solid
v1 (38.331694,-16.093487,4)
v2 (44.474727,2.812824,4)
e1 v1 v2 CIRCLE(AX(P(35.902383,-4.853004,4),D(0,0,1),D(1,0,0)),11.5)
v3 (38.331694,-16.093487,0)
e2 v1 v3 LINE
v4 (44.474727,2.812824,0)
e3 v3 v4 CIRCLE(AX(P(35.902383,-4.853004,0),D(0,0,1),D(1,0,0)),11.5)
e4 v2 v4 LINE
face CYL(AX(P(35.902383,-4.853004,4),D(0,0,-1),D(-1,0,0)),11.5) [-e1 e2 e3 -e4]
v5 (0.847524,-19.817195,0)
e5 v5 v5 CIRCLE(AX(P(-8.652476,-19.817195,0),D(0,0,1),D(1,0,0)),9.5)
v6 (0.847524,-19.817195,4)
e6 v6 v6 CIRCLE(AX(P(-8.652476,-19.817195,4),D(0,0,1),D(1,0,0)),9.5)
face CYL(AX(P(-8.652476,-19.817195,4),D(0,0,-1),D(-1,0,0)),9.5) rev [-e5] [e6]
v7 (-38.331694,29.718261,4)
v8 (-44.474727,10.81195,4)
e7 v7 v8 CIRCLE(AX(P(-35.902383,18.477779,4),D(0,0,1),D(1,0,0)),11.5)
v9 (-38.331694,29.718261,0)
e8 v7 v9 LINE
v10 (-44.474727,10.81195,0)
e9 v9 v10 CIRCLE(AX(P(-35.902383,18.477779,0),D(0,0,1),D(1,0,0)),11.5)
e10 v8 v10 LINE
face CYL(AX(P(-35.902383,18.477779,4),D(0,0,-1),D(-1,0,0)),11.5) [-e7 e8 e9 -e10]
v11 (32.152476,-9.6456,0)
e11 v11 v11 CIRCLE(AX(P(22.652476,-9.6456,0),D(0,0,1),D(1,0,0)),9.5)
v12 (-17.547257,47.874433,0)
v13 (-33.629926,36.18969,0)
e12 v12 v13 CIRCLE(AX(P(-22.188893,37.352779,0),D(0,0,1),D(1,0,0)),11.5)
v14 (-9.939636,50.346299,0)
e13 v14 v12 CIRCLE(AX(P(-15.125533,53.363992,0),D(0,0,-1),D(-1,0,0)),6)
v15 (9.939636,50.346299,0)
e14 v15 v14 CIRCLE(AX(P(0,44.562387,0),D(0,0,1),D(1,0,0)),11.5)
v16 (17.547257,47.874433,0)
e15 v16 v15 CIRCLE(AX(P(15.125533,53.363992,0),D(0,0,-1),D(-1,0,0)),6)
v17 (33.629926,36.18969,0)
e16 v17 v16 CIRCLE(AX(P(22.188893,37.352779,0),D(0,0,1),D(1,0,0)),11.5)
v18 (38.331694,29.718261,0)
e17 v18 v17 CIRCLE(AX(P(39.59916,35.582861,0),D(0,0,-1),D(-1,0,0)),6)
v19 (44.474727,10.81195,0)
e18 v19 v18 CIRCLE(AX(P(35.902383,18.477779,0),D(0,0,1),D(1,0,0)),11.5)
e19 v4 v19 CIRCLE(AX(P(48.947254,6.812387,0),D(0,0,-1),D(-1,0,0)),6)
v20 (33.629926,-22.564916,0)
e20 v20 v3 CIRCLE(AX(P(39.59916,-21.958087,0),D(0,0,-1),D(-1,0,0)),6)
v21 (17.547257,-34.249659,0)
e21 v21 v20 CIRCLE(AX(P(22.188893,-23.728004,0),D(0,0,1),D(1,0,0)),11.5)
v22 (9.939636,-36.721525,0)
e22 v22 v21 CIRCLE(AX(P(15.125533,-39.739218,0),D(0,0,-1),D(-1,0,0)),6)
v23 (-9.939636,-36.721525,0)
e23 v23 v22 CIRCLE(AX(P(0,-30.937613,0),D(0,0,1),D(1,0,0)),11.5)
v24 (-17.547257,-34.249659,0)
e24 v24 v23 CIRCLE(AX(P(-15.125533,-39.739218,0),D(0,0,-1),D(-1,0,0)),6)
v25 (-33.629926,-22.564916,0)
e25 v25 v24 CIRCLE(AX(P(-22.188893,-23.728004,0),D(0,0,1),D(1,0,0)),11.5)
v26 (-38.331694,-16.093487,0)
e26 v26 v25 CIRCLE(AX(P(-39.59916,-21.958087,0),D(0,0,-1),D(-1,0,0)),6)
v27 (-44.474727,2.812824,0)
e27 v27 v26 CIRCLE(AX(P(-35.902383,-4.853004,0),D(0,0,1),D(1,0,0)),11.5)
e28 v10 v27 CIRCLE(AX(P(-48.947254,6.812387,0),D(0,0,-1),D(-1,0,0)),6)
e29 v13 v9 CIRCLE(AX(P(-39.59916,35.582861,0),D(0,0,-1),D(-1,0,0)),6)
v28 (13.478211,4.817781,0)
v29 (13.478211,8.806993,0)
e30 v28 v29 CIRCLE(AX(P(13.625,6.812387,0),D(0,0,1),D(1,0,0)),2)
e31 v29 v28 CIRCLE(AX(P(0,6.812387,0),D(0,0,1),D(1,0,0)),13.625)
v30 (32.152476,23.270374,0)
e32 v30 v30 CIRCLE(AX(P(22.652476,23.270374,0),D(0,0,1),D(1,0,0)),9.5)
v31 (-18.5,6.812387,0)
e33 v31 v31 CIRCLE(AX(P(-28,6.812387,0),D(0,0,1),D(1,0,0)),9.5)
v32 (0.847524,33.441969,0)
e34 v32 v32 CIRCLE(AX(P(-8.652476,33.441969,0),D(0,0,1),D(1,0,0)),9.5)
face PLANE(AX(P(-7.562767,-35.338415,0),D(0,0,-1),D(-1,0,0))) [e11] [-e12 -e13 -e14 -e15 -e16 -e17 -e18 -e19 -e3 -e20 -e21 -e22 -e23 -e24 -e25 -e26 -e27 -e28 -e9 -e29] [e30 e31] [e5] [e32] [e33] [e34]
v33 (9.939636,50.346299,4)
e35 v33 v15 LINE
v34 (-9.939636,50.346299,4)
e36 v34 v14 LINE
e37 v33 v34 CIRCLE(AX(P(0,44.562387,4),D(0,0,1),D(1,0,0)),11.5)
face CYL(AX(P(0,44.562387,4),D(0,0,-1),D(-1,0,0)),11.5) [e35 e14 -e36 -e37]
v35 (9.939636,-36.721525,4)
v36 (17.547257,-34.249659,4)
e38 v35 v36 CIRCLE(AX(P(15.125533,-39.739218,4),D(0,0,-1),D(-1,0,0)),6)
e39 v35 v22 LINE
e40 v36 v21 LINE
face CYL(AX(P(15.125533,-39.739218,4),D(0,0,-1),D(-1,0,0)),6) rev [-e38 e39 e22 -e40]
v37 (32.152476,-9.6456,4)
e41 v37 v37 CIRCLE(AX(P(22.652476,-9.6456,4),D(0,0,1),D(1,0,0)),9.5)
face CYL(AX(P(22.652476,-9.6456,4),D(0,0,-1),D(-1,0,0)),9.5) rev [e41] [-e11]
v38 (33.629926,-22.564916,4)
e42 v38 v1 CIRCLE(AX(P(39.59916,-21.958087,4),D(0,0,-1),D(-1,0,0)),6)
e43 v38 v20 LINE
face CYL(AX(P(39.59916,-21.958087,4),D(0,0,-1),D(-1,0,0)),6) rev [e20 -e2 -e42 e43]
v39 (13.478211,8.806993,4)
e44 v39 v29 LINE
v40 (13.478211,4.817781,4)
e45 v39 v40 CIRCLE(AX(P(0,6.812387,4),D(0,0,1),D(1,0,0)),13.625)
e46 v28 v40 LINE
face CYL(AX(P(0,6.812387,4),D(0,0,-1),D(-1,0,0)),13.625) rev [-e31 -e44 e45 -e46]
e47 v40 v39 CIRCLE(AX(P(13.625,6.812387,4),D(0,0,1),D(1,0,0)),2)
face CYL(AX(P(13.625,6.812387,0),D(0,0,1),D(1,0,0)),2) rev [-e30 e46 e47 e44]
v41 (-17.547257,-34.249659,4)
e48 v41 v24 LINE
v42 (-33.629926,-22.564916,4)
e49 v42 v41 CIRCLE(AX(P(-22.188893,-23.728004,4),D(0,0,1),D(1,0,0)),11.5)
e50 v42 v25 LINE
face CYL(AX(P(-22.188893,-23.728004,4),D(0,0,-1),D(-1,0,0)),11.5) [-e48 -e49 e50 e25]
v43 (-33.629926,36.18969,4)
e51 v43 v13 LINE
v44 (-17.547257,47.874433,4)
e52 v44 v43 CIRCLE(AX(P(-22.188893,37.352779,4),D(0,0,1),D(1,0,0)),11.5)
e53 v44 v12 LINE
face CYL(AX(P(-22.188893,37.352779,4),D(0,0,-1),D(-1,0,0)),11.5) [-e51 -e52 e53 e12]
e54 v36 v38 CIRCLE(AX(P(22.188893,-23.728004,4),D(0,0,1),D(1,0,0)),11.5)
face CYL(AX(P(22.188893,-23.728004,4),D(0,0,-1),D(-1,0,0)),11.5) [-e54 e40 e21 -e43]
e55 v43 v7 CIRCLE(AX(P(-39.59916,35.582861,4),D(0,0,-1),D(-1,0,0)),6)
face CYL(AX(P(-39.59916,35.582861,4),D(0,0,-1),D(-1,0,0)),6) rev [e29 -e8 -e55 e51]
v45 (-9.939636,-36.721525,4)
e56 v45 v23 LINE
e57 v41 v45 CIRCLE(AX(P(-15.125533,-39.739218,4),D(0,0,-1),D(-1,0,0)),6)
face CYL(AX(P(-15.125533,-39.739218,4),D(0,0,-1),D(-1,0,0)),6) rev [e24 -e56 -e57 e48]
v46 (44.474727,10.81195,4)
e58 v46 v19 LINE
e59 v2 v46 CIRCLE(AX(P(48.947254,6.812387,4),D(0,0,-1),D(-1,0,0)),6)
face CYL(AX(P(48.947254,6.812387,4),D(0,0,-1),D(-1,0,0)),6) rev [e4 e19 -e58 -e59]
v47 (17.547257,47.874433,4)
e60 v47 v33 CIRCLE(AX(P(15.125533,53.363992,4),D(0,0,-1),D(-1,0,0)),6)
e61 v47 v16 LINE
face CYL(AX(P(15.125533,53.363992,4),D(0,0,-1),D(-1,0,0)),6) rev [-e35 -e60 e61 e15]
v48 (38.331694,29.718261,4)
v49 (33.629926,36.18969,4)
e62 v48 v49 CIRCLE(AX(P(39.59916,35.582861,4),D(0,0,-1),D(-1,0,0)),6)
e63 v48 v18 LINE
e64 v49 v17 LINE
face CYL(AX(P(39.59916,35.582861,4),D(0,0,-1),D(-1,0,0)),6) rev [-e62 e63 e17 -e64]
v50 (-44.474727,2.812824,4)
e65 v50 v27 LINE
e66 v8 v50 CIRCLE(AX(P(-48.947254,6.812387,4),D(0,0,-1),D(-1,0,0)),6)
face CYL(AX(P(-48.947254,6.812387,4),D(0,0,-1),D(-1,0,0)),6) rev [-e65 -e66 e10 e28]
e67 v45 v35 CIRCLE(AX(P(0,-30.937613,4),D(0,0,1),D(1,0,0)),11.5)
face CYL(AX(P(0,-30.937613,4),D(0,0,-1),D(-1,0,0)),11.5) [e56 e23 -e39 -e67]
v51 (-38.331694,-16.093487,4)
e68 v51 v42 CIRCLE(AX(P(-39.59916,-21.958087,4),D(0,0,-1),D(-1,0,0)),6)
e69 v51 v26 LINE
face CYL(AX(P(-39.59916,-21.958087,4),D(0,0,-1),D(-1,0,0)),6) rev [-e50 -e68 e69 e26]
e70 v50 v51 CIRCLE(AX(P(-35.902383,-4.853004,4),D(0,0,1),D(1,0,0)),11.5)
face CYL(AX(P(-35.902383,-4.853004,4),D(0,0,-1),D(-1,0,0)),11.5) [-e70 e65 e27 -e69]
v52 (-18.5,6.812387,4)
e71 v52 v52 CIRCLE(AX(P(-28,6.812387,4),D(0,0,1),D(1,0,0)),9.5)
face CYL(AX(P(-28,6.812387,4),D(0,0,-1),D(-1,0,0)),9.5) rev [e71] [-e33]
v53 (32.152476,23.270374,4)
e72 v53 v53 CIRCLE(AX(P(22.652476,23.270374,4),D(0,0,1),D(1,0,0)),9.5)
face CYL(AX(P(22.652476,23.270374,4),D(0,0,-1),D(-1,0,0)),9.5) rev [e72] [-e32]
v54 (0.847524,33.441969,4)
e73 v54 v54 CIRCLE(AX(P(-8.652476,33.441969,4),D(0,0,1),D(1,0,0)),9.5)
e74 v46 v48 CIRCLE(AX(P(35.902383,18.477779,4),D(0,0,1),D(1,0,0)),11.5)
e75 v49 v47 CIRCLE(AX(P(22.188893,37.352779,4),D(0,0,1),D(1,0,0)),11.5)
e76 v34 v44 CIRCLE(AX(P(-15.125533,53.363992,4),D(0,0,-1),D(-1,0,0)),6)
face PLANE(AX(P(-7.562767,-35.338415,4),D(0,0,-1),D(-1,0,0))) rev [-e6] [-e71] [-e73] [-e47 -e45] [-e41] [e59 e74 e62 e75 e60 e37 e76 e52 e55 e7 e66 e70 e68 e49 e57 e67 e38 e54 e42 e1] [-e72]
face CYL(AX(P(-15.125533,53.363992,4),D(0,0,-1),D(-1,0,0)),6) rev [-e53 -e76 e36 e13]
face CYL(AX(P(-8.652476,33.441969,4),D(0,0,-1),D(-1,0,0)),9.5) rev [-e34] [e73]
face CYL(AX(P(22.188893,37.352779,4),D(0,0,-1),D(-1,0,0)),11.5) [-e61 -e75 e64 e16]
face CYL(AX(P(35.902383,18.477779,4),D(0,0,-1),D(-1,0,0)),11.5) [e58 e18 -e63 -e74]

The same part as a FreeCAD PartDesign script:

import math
import FreeCAD as App
import Part
import Sketcher
from FreeCAD import Vector

doc = App.newDocument("Part")
body = doc.addObject("PartDesign::Body", "Body")

# Sketch on XY plane
sketch1 = body.newObject("Sketcher::SketchObject", "Sketch")
sketch1.AttachmentSupport = (doc.getObject("XY_Plane"), [""])
sketch1.MapMode = "FlatFace"
sketch1.addGeometry(Part.ArcOfCircle(Part.Circle(Vector(0, -31, 0), Vector(0, 0, 1), 12), math.radians(-150), math.radians(-30)), False)
sketch1.addGeometry(Part.ArcOfCircle(Part.Circle(Vector(15, -40, 0), Vector(0, 0, 1), 6), math.radians(66), math.radians(150)), False)
sketch1.addGeometry(Part.ArcOfCircle(Part.Circle(Vector(22, -24, 0), Vector(0, 0, 1), 12), math.radians(-114), math.radians(6)), False)
sketch1.addGeometry(Part.ArcOfCircle(Part.Circle(Vector(40, -22, 0), Vector(0, 0, 1), 6), math.radians(102), math.radians(186)), False)
sketch1.addGeometry(Part.ArcOfCircle(Part.Circle(Vector(36, -5, 0), Vector(0, 0, 1), 11), math.radians(-78), math.radians(42)), False)
sketch1.addGeometry(Part.ArcOfCircle(Part.Circle(Vector(49, 7, 0), Vector(0, 0, 1), 6), math.radians(138), math.radians(222)), False)
sketch1.addGeometry(Part.ArcOfCircle(Part.Circle(Vector(36, 18, 0), Vector(0, 0, 1), 11), math.radians(-42), math.radians(78)), False)
sketch1.addGeometry(Part.ArcOfCircle(Part.Circle(Vector(40, 36, 0), Vector(0, 0, 1), 6), math.radians(174), math.radians(258)), False)
sketch1.addGeometry(Part.ArcOfCircle(Part.Circle(Vector(22, 37, 0), Vector(0, 0, 1), 12), math.radians(-6), math.radians(114)), False)
sketch1.addGeometry(Part.ArcOfCircle(Part.Circle(Vector(15, 53, 0), Vector(0, 0, 1), 6), math.radians(-150), math.radians(-66)), False)
sketch1.addGeometry(Part.ArcOfCircle(Part.Circle(Vector(0, 45, 0), Vector(0, 0, 1), 11), math.radians(30), math.radians(150)), False)
sketch1.addGeometry(Part.ArcOfCircle(Part.Circle(Vector(-15, 53, 0), Vector(0, 0, 1), 6), math.radians(-114), math.radians(-30)), False)
sketch1.addGeometry(Part.ArcOfCircle(Part.Circle(Vector(-22, 37, 0), Vector(0, 0, 1), 12), math.radians(66), math.radians(186)), False)
sketch1.addGeometry(Part.ArcOfCircle(Part.Circle(Vector(-40, 36, 0), Vector(0, 0, 1), 6), math.radians(-78), math.radians(6)), False)
sketch1.addGeometry(Part.ArcOfCircle(Part.Circle(Vector(-36, 18, 0), Vector(0, 0, 1), 11), math.radians(102), math.radians(222)), False)
sketch1.addGeometry(Part.ArcOfCircle(Part.Circle(Vector(-49, 7, 0), Vector(0, 0, 1), 6), math.radians(-42), math.radians(42)), False)
sketch1.addGeometry(Part.ArcOfCircle(Part.Circle(Vector(-36, -5, 0), Vector(0, 0, 1), 11), math.radians(138), math.radians(258)), False)
sketch1.addGeometry(Part.ArcOfCircle(Part.Circle(Vector(-40, -22, 0), Vector(0, 0, 1), 6), math.radians(-6), math.radians(78)), False)
sketch1.addGeometry(Part.ArcOfCircle(Part.Circle(Vector(-22, -24, 0), Vector(0, 0, 1), 12), math.radians(174), math.radians(294)), False)
sketch1.addGeometry(Part.ArcOfCircle(Part.Circle(Vector(-15, -40, 0), Vector(0, 0, 1), 6), math.radians(30), math.radians(114)), False)
sketch1.addGeometry(Part.Circle(Vector(-9, -20, 0), Vector(0, 0, 1), 10), False)
sketch1.addGeometry(Part.Circle(Vector(23, -10, 0), Vector(0, 0, 1), 10), False)
sketch1.addGeometry(Part.Circle(Vector(-28, 7, 0), Vector(0, 0, 1), 10), False)
sketch1.addGeometry(Part.Circle(Vector(-9, 33, 0), Vector(0, 0, 1), 10), False)
sketch1.addGeometry(Part.Circle(Vector(0, 7, 0), Vector(0, 0, 1), 14), False)
sketch1.addGeometry(Part.Circle(Vector(23, 23, 0), Vector(0, 0, 1), 10), False)
sketch1.addConstraint(Sketcher.Constraint("Tangent", 0, 2, 1, 2))
sketch1.addConstraint(Sketcher.Constraint("Tangent", 1, 1, 2, 1))
sketch1.addConstraint(Sketcher.Constraint("Tangent", 2, 2, 3, 2))
sketch1.addConstraint(Sketcher.Constraint("Tangent", 3, 1, 4, 1))
sketch1.addConstraint(Sketcher.Constraint("Tangent", 4, 2, 5, 2))
sketch1.addConstraint(Sketcher.Constraint("Tangent", 5, 1, 6, 1))
sketch1.addConstraint(Sketcher.Constraint("Tangent", 6, 2, 7, 2))
sketch1.addConstraint(Sketcher.Constraint("Tangent", 7, 1, 8, 1))
sketch1.addConstraint(Sketcher.Constraint("Tangent", 8, 2, 9, 2))
sketch1.addConstraint(Sketcher.Constraint("Tangent", 9, 1, 10, 1))
sketch1.addConstraint(Sketcher.Constraint("Tangent", 10, 2, 11, 2))
sketch1.addConstraint(Sketcher.Constraint("Tangent", 11, 1, 12, 1))
sketch1.addConstraint(Sketcher.Constraint("Tangent", 12, 2, 13, 2))
sketch1.addConstraint(Sketcher.Constraint("Tangent", 13, 1, 14, 1))
sketch1.addConstraint(Sketcher.Constraint("Tangent", 14, 2, 15, 2))
sketch1.addConstraint(Sketcher.Constraint("Tangent", 15, 1, 16, 1))
sketch1.addConstraint(Sketcher.Constraint("Tangent", 16, 2, 17, 2))
sketch1.addConstraint(Sketcher.Constraint("Tangent", 17, 1, 18, 1))
sketch1.addConstraint(Sketcher.Constraint("Tangent", 18, 2, 19, 2))
sketch1.addConstraint(Sketcher.Constraint("Tangent", 19, 1, 0, 1))
sketch1.addConstraint(Sketcher.Constraint("Equal", 0, 2))
sketch1.addConstraint(Sketcher.Constraint("Equal", 1, 3))
sketch1.addConstraint(Sketcher.Constraint("Equal", 2, 4))
sketch1.addConstraint(Sketcher.Constraint("Equal", 3, 5))
sketch1.addConstraint(Sketcher.Constraint("Equal", 4, 6))
sketch1.addConstraint(Sketcher.Constraint("Equal", 5, 7))
sketch1.addConstraint(Sketcher.Constraint("Equal", 6, 8))
sketch1.addConstraint(Sketcher.Constraint("Equal", 7, 9))
sketch1.addConstraint(Sketcher.Constraint("Equal", 8, 10))
sketch1.addConstraint(Sketcher.Constraint("Equal", 9, 11))
sketch1.addConstraint(Sketcher.Constraint("Equal", 10, 12))
sketch1.addConstraint(Sketcher.Constraint("Equal", 11, 13))
sketch1.addConstraint(Sketcher.Constraint("Equal", 12, 14))
sketch1.addConstraint(Sketcher.Constraint("Equal", 13, 15))
sketch1.addConstraint(Sketcher.Constraint("Equal", 14, 16))
sketch1.addConstraint(Sketcher.Constraint("Equal", 15, 17))
sketch1.addConstraint(Sketcher.Constraint("Equal", 16, 18))
sketch1.addConstraint(Sketcher.Constraint("Equal", 17, 19))
sketch1.addConstraint(Sketcher.Constraint("Equal", 20, 21))
sketch1.addConstraint(Sketcher.Constraint("Equal", 21, 22))
sketch1.addConstraint(Sketcher.Constraint("Equal", 22, 23))
sketch1.addConstraint(Sketcher.Constraint("Equal", 23, 25))
sketch1.addConstraint(Sketcher.Constraint("Symmetric", 9, 3, 11, 3, -2))
sketch1.addConstraint(Sketcher.Constraint("Symmetric", 7, 3, 13, 3, -2))
sketch1.addConstraint(Sketcher.Constraint("Symmetric", 5, 3, 15, 3, -2))
sketch1.addConstraint(Sketcher.Constraint("Symmetric", 3, 3, 17, 3, -2))
sketch1.addConstraint(Sketcher.Constraint("Symmetric", 1, 3, 19, 3, -2))
sketch1.addConstraint(Sketcher.Constraint("PointOnObject", 24, 3, -2))
sketch1.addConstraint(Sketcher.Constraint("Horizontal", 15, 3, 22, 3))
sketch1.addConstraint(Sketcher.Constraint("Horizontal", 22, 3, 24, 3))
sketch1.addConstraint(Sketcher.Constraint("Vertical", 4, 3, 6, 3))
sketch1.addConstraint(Sketcher.Constraint("Vertical", 3, 3, 7, 3))
sketch1.addConstraint(Sketcher.Constraint("Vertical", 2, 3, 8, 3))
sketch1.addConstraint(Sketcher.Constraint("Vertical", 1, 3, 9, 3))
sketch1.addConstraint(Sketcher.Constraint("Vertical", 20, 3, 23, 3))
sketch1.addConstraint(Sketcher.Constraint("Vertical", 21, 3, 25, 3))
sketch1.addConstraint(Sketcher.Constraint("Diameter", 20, 19.0))
sketch1.addConstraint(Sketcher.Constraint("Radius", 1, 6.0))
sketch1.addConstraint(Sketcher.Constraint("Radius", 0, 11.5))
sketch1.addConstraint(Sketcher.Constraint("Diameter", 24, 27.25))
sketch1.addConstraint(Sketcher.Constraint("DistanceX", 22, 3, -1, 1, 28.0))
sketch1.addConstraint(Sketcher.Constraint("DistanceY", 0, 3, 5, 3, 37.75))
sketch1.addConstraint(Sketcher.Constraint("DistanceY", 2, 3, 4, 3, 18.875))
sketch1.addConstraint(Sketcher.Constraint("DistanceY", 21, 3, -1, 1, 9.6456))
sketch1.addConstraint(Sketcher.Constraint("DistanceY", -1, 1, 9, 1, 50.346299))
sketch1.addConstraint(Sketcher.Constraint("DistanceY", 3, 3, 3, 1, 5.8646))
sketch1.addConstraint(Sketcher.Constraint("DistanceX", -1, 1, 3, 3, 39.59916))
sketch1.addConstraint(Sketcher.Constraint("DistanceY", -1, 1, 6, 3, 18.477779))
sketch1.addConstraint(Sketcher.Constraint("DistanceY", -1, 1, 23, 3, 33.441969))
sketch1.addConstraint(Sketcher.Constraint("DistanceY", 18, 3, 20, 3, 3.910809))
sketch1.addConstraint(Sketcher.Constraint("DistanceX", 20, 3, 1, 3, 23.778009))
sketch1.addConstraint(Sketcher.Constraint("DistanceX", 1, 1, 21, 3, 5.105219))
sketch1.addConstraint(Sketcher.Constraint("DistanceY", 25, 3, 8, 2, 24.604059))
pad1 = body.newObject("PartDesign::Pad", "Pad")
pad1.Profile = sketch1
pad1.Length = 4

# Sketch on XY plane
sketch2 = body.newObject("Sketcher::SketchObject", "Sketch001")
sketch2.AttachmentSupport = (doc.getObject("XY_Plane"), [""])
sketch2.MapMode = "FlatFace"
sketch2.AttachmentOffset = App.Placement(Vector(0, 0, 4), App.Rotation())
sketch2.addGeometry(Part.Circle(Vector(13.6, 6.8, 0), Vector(0, 0, 1), 2), False)
sketch2.addConstraint(Sketcher.Constraint("Diameter", 0, 4.0))
sketch2.addConstraint(Sketcher.Constraint("DistanceX", -1, 1, 0, 3, 13.625))
sketch2.addConstraint(Sketcher.Constraint("DistanceY", -1, 1, 0, 3, 6.812387))
pocket1 = body.newObject("PartDesign::Pocket", "Pocket")
pocket1.Profile = sketch2
pocket1.Length = 4

doc.recompute()
